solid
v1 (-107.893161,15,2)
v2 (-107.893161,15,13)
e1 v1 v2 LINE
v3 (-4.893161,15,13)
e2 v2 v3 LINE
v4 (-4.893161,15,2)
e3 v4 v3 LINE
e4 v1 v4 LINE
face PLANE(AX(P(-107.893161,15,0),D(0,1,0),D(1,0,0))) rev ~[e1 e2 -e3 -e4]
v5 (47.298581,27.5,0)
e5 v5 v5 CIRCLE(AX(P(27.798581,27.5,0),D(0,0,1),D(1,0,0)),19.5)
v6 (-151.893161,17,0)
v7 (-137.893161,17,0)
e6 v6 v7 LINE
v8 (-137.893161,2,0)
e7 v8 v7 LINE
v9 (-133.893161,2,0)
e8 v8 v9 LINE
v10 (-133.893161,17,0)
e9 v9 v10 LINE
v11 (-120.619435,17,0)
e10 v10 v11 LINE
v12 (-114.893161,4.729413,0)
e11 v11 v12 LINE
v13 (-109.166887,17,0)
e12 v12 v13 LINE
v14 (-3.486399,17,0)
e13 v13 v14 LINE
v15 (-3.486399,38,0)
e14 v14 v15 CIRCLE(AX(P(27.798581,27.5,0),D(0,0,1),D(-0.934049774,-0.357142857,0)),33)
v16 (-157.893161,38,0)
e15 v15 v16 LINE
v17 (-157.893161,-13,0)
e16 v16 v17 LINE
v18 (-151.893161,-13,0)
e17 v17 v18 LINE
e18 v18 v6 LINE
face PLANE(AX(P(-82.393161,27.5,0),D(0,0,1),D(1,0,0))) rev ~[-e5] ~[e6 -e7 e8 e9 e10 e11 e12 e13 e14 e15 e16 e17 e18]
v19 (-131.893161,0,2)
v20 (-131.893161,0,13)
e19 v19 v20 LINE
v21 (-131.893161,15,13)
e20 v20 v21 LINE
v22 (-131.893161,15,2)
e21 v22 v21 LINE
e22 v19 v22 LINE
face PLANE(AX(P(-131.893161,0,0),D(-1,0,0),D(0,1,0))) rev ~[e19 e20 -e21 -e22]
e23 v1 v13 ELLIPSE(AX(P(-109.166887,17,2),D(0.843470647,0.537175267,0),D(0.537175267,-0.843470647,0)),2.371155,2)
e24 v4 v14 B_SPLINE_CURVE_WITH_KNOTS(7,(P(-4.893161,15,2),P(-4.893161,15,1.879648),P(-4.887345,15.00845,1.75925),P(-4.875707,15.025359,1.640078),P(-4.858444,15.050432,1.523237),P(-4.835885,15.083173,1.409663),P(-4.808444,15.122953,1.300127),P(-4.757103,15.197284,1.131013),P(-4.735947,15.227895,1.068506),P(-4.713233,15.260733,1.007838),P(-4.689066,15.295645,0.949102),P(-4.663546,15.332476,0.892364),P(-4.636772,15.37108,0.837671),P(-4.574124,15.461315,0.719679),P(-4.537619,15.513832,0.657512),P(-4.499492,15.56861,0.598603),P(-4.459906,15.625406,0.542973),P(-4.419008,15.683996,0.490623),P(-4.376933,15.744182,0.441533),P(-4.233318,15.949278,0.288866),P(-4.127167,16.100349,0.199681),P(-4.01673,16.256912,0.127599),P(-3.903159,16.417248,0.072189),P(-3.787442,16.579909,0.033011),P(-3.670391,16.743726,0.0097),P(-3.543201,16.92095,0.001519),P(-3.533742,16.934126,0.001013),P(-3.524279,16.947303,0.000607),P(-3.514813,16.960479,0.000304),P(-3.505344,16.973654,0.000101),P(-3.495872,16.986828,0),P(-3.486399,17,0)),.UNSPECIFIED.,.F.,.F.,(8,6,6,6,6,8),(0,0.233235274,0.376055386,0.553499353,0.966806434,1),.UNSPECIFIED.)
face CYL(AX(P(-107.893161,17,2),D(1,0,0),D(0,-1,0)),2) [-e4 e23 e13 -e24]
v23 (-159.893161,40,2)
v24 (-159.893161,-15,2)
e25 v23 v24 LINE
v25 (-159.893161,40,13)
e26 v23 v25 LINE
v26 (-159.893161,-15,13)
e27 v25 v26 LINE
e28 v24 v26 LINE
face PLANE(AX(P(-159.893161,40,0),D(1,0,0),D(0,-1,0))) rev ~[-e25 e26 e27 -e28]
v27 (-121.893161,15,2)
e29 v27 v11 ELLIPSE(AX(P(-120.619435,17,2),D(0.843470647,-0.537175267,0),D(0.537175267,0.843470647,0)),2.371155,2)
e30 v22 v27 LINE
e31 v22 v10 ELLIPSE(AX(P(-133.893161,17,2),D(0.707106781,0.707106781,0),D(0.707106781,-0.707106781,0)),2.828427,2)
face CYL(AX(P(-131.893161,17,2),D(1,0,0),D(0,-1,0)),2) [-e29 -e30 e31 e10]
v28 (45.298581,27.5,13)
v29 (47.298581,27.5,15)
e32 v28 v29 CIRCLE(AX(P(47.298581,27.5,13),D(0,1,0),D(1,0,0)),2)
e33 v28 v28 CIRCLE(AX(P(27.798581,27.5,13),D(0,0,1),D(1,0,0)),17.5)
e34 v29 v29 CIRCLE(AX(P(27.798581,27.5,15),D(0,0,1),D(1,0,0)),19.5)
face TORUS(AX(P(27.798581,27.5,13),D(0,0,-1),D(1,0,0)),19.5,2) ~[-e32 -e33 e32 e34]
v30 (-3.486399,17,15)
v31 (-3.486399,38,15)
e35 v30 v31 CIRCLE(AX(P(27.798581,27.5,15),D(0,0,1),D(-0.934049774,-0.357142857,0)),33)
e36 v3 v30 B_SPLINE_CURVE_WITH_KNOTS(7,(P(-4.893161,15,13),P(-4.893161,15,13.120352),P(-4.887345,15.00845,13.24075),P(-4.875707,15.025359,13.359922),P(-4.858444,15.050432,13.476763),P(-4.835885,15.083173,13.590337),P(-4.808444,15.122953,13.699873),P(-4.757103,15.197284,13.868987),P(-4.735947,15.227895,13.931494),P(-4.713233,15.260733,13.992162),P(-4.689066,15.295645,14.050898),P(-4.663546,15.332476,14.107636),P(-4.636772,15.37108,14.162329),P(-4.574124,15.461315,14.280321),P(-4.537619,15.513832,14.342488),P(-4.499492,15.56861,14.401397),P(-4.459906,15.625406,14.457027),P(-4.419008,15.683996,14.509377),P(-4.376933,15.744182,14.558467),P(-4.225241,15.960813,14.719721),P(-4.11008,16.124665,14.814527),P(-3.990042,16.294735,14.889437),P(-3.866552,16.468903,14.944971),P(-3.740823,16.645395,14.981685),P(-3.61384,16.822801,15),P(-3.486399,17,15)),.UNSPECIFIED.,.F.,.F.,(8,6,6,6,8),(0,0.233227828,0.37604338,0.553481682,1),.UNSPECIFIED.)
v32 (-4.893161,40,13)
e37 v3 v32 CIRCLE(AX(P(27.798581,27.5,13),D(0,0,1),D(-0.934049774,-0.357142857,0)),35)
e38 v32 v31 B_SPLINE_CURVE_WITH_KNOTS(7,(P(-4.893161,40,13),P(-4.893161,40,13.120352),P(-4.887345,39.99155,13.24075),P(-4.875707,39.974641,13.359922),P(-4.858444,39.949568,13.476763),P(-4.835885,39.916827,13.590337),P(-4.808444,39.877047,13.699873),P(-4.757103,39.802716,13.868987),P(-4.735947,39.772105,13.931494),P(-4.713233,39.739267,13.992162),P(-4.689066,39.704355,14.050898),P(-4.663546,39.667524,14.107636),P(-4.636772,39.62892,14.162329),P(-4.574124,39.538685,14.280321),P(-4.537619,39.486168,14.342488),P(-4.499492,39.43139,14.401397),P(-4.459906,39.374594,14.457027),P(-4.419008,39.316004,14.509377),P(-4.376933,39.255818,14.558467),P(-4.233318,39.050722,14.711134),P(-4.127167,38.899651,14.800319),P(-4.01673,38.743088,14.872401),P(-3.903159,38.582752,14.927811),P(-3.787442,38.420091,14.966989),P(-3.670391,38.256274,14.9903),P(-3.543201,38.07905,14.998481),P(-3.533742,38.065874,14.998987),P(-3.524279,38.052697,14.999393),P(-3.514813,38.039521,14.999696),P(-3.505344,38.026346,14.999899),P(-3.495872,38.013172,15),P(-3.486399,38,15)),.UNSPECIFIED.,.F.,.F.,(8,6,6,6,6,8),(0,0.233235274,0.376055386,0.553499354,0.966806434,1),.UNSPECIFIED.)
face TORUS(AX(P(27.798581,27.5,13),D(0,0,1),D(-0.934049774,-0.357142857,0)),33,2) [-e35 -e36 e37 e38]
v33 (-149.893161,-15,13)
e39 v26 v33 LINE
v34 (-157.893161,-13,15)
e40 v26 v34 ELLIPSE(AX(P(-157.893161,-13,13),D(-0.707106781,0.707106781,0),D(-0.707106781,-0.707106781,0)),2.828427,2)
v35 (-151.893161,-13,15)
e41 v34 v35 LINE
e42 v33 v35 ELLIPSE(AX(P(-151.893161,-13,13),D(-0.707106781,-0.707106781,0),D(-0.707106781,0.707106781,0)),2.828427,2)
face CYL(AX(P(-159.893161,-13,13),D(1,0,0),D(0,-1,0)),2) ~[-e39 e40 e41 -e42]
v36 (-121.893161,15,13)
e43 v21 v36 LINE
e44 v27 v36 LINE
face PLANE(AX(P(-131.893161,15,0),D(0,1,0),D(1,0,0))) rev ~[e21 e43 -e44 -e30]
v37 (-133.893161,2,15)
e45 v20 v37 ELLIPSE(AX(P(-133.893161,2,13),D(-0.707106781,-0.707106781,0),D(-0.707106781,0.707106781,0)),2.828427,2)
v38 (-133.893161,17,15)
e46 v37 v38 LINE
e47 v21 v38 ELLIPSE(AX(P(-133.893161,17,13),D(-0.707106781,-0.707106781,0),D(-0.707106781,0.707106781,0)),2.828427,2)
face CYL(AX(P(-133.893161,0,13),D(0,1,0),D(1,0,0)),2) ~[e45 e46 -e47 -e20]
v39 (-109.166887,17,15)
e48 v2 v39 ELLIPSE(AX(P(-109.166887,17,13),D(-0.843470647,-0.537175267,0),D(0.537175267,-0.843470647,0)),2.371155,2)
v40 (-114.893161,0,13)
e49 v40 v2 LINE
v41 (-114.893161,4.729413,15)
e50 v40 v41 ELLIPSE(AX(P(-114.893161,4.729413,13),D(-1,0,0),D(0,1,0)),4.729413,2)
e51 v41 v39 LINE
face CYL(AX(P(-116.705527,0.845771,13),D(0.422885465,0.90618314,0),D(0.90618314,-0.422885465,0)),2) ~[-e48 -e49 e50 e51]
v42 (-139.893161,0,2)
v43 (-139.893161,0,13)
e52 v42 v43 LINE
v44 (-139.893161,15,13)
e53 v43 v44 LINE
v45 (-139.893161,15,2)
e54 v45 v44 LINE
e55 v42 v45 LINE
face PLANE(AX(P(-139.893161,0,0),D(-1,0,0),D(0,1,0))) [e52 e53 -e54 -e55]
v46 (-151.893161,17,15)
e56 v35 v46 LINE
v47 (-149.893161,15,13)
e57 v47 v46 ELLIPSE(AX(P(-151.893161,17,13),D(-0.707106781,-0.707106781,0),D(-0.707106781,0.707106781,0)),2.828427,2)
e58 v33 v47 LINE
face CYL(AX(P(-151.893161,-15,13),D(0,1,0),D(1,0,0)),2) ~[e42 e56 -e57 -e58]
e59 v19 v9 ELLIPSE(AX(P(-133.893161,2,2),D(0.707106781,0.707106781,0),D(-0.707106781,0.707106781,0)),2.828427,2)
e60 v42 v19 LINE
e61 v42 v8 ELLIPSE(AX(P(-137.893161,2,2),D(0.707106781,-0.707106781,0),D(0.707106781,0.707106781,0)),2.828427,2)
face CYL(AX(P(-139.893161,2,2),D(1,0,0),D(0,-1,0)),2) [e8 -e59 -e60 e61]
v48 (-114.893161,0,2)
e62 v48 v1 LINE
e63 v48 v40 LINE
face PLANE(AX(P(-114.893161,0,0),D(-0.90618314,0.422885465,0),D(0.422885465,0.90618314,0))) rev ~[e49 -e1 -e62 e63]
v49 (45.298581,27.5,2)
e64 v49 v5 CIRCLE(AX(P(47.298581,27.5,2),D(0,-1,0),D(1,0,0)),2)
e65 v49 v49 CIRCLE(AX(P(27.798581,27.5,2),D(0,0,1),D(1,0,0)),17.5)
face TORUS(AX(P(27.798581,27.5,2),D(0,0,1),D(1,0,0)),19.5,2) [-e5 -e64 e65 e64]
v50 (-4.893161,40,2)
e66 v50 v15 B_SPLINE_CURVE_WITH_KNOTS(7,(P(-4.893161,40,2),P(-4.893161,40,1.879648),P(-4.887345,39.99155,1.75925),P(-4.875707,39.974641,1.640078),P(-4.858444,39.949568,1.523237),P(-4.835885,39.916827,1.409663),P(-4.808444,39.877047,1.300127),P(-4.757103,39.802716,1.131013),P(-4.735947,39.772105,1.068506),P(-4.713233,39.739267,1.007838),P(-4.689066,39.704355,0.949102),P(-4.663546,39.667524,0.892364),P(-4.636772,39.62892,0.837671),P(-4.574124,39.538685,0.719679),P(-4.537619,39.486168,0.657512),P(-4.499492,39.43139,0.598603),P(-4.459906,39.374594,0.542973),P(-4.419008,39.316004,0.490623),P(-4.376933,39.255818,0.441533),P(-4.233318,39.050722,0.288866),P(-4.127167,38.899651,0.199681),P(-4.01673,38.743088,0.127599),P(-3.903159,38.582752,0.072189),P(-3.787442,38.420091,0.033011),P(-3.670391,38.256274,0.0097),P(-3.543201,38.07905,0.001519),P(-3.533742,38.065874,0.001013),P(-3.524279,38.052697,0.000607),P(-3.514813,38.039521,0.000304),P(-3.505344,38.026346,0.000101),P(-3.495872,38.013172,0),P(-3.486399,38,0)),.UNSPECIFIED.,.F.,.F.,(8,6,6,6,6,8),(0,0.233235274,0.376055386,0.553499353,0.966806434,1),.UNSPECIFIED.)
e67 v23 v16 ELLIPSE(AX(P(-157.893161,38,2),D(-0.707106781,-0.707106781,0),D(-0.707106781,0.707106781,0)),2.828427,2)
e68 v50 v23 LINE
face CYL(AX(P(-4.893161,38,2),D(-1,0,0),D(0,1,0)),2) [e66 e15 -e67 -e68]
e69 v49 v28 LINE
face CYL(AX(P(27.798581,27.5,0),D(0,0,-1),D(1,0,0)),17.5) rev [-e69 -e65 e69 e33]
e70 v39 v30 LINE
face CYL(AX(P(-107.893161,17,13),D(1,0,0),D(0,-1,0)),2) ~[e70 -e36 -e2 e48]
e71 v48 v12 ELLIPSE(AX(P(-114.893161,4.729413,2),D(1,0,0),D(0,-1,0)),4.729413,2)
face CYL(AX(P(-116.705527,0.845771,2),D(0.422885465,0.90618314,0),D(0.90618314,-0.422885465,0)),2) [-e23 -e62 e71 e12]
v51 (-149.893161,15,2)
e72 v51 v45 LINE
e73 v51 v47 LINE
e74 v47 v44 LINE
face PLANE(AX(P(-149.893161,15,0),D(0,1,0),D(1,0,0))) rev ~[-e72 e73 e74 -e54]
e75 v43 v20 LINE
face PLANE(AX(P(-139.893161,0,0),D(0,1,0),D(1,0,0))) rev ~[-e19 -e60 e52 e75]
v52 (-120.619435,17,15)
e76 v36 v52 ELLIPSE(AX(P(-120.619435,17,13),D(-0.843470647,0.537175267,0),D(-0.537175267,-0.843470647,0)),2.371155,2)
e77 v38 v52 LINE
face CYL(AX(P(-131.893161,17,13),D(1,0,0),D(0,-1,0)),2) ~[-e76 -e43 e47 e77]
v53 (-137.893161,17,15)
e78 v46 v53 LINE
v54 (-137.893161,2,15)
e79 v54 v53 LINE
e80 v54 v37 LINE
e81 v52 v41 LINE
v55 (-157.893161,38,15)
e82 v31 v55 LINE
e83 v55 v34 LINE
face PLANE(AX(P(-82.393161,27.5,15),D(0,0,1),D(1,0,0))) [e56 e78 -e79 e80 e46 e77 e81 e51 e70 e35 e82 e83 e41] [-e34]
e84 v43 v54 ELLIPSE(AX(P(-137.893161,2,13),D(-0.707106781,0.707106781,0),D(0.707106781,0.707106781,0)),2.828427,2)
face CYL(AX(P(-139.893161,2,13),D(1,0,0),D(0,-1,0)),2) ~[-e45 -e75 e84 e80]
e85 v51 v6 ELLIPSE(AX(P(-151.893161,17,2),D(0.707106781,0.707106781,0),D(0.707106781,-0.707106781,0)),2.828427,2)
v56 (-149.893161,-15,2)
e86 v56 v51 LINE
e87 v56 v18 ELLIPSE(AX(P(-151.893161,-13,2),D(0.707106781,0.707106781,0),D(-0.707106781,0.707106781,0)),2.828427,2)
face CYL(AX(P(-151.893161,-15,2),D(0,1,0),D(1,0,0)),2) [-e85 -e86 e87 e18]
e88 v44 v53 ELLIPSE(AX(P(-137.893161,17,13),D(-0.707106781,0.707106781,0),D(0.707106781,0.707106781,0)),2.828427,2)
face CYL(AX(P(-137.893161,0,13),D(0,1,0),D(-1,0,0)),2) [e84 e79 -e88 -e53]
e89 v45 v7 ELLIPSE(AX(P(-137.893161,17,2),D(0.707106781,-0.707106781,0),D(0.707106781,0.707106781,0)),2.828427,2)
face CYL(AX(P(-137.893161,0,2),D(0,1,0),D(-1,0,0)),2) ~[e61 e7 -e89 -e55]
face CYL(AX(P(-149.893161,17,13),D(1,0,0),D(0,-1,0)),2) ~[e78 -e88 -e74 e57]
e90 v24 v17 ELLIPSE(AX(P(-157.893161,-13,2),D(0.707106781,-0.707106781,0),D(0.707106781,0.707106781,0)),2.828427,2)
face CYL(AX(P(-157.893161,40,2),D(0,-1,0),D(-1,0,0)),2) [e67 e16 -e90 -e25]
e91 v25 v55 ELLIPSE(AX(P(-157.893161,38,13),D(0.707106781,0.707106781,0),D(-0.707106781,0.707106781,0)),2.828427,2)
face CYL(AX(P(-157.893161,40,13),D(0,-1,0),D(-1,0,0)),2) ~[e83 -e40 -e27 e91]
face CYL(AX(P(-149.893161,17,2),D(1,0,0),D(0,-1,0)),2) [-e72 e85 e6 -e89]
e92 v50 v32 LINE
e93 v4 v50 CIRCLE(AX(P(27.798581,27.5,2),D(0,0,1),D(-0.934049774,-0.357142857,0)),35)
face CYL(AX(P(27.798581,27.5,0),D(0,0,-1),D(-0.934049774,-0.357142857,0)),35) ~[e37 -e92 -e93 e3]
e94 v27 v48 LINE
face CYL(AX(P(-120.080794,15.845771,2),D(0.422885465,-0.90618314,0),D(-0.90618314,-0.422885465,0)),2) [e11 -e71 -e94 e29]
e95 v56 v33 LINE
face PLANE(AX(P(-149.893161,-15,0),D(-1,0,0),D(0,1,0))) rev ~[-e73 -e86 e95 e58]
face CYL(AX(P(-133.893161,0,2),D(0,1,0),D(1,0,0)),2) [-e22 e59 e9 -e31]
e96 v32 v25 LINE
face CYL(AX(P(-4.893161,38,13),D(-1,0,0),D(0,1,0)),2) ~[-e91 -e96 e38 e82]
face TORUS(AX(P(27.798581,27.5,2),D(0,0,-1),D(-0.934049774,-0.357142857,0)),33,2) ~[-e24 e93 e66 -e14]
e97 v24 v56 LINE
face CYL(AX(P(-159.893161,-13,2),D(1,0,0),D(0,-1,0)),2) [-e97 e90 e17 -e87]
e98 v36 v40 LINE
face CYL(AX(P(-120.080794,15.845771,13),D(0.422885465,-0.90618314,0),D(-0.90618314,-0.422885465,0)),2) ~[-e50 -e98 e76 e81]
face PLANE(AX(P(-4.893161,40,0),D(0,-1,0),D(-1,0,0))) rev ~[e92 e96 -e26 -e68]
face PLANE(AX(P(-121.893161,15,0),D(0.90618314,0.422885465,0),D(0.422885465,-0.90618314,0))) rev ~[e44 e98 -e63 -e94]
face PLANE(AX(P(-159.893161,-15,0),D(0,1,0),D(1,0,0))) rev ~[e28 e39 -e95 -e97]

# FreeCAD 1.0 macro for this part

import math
import FreeCAD as App
import Part
import Sketcher

V = App.Vector


def edges_at(feature, points):
    """Names of the edges that pass closest to the given points."""
    edges = feature.Shape.Edges
    near = lambda p: min(range(len(edges)), key=lambda i: edges[i].distToShape(Part.Vertex(*p))[0])
    return sorted({f"Edge{near(p) + 1}" for p in points})

doc = App.newDocument("Part")
body = doc.addObject("PartDesign::Body", "Body")

# Sketch on XY plane
sketch1 = body.newObject("Sketcher::SketchObject", "Sketch")
sketch1.AttachmentSupport = (doc.getObject("XY_Plane"), [""])
sketch1.MapMode = "FlatFace"
sketch1.addGeometry([
    Part.LineSegment(V(-5, 40, 0), V(-160, 40, 0)),  # 0
    Part.LineSegment(V(-160, 40, 0), V(-160, -15, 0)),  # 1
    Part.LineSegment(V(-160, -15, 0), V(-150, -15, 0)),  # 2
    Part.LineSegment(V(-150, -15, 0), V(-150, 15, 0)),  # 3
    Part.LineSegment(V(-150, 15, 0), V(-140, 15, 0)),  # 4
    Part.LineSegment(V(-140, 15, 0), V(-140, 0, 0)),  # 5
    Part.LineSegment(V(-140, 0, 0), V(-132, 0, 0)),  # 6
    Part.LineSegment(V(-132, 0, 0), V(-132, 15, 0)),  # 7
    Part.LineSegment(V(-132, 15, 0), V(-122, 15, 0)),  # 8
    Part.LineSegment(V(-122, 15, 0), V(-115, 0, 0)),  # 9
    Part.LineSegment(V(-115, 0, 0), V(-108, 15, 0)),  # 10
    Part.LineSegment(V(-108, 15, 0), V(-5, 15, 0)),  # 11
    Part.ArcOfCircle(Part.Circle(V(28, 28, 0), V(0, 0, 1), 35), math.radians(-159), math.radians(159)),  # 12
    Part.Circle(V(28, 28, 0), V(0, 0, 1), 18),  # 13
], False)
sketch1.addConstraint([
    Sketcher.Constraint("Coincident", 0, 2, 1, 1),
    Sketcher.Constraint("Coincident", 1, 2, 2, 1),
    Sketcher.Constraint("Coincident", 2, 2, 3, 1),
    Sketcher.Constraint("Coincident", 3, 2, 4, 1),
    Sketcher.Constraint("Coincident", 4, 2, 5, 1),
    Sketcher.Constraint("Coincident", 5, 2, 6, 1),
    Sketcher.Constraint("Coincident", 6, 2, 7, 1),
    Sketcher.Constraint("Coincident", 7, 2, 8, 1),
    Sketcher.Constraint("Coincident", 8, 2, 9, 1),
    Sketcher.Constraint("Coincident", 9, 2, 10, 1),
    Sketcher.Constraint("Coincident", 10, 2, 11, 1),
    Sketcher.Constraint("Coincident", 11, 2, 12, 1),
    Sketcher.Constraint("Coincident", 12, 2, 0, 1),
    Sketcher.Constraint("Horizontal", 0),
    Sketcher.Constraint("Vertical", 1),
    Sketcher.Constraint("Horizontal", 2),
    Sketcher.Constraint("Vertical", 3),
    Sketcher.Constraint("Horizontal", 4),
    Sketcher.Constraint("Vertical", 5),
    Sketcher.Constraint("Horizontal", 6),
    Sketcher.Constraint("Vertical", 7),
    Sketcher.Constraint("Horizontal", 8),
    Sketcher.Constraint("Horizontal", 11),
    Sketcher.Constraint("Coincident", 13, 3, 12, 3),
    Sketcher.Constraint("PointOnObject", 5, 2, -1),
    Sketcher.Constraint("PointOnObject", 9, 2, -1),
    Sketcher.Constraint("Horizontal", 4, 2, 7, 2),
    Sketcher.Constraint("Horizontal", 8, 2, 10, 2),
    Sketcher.Constraint("Vertical", 11, 2, 12, 2),
    Sketcher.Constraint("Equal", 2, 4),
    Sketcher.Constraint("Equal", 4, 8),
    Sketcher.Constraint("Equal", 9, 10),
    Sketcher.Constraint("Diameter", 13, 35.0),
    Sketcher.Constraint("Radius", 12, 35.0),
    Sketcher.Constraint("DistanceX", 0, 2, 0, 1, 155.0),
    Sketcher.Constraint("DistanceX", 2, 1, 2, 2, 10.0),
    Sketcher.Constraint("DistanceX", 6, 1, 6, 2, 8.0),
    Sketcher.Constraint("DistanceX", 11, 1, 11, 2, 103.0),
    Sketcher.Constraint("DistanceY", 1, 2, 1, 1, 55.0),
    Sketcher.Constraint("DistanceY", 3, 1, 3, 2, 30.0),
    Sketcher.Constraint("DistanceY", 5, 2, 5, 1, 15.0),
    Sketcher.Constraint("DistanceX", -1, 1, 12, 3, 27.798581),
])
pad1 = body.newObject("PartDesign::Pad", "Pad")
pad1.Profile = sketch1
pad1.Length = 15
doc.recompute()

fillet = body.newObject("PartDesign::Fillet", "Fillet")
fillet.Base = (pad1, edges_at(pad1, [
    (62.799, 27.5, 15),
    (-82.393, 40, 15),
    (10.299, 27.5, 15),
    (-56.393, 15, 15),
    (-111.393, 7.5, 15),
    (-131.893, 7.5, 15),
    (-118.393, 7.5, 15),
    (-126.893, 15, 15),
    (-149.893, 0, 15),
    (-144.893, 15, 15),
    (-139.893, 7.5, 15),
    (-159.893, 12.5, 15),
    (-154.893, -15, 15),
    (-135.893, 0, 15),
    (62.799, 27.5, 0),
    (10.299, 27.5, 0),
    (-56.393, 15, 0),
    (-82.393, 40, 0),
    (-126.893, 15, 0),
    (-118.393, 7.5, 0),
    (-139.893, 7.5, 0),
    (-111.393, 7.5, 0),
    (-131.893, 7.5, 0),
    (-135.893, 0, 0),
    (-144.893, 15, 0),
    (-149.893, 0, 0),
    (-154.893, -15, 0),
    (-159.893, 12.5, 0),
]))
fillet.Radius = 2

doc.recompute()
